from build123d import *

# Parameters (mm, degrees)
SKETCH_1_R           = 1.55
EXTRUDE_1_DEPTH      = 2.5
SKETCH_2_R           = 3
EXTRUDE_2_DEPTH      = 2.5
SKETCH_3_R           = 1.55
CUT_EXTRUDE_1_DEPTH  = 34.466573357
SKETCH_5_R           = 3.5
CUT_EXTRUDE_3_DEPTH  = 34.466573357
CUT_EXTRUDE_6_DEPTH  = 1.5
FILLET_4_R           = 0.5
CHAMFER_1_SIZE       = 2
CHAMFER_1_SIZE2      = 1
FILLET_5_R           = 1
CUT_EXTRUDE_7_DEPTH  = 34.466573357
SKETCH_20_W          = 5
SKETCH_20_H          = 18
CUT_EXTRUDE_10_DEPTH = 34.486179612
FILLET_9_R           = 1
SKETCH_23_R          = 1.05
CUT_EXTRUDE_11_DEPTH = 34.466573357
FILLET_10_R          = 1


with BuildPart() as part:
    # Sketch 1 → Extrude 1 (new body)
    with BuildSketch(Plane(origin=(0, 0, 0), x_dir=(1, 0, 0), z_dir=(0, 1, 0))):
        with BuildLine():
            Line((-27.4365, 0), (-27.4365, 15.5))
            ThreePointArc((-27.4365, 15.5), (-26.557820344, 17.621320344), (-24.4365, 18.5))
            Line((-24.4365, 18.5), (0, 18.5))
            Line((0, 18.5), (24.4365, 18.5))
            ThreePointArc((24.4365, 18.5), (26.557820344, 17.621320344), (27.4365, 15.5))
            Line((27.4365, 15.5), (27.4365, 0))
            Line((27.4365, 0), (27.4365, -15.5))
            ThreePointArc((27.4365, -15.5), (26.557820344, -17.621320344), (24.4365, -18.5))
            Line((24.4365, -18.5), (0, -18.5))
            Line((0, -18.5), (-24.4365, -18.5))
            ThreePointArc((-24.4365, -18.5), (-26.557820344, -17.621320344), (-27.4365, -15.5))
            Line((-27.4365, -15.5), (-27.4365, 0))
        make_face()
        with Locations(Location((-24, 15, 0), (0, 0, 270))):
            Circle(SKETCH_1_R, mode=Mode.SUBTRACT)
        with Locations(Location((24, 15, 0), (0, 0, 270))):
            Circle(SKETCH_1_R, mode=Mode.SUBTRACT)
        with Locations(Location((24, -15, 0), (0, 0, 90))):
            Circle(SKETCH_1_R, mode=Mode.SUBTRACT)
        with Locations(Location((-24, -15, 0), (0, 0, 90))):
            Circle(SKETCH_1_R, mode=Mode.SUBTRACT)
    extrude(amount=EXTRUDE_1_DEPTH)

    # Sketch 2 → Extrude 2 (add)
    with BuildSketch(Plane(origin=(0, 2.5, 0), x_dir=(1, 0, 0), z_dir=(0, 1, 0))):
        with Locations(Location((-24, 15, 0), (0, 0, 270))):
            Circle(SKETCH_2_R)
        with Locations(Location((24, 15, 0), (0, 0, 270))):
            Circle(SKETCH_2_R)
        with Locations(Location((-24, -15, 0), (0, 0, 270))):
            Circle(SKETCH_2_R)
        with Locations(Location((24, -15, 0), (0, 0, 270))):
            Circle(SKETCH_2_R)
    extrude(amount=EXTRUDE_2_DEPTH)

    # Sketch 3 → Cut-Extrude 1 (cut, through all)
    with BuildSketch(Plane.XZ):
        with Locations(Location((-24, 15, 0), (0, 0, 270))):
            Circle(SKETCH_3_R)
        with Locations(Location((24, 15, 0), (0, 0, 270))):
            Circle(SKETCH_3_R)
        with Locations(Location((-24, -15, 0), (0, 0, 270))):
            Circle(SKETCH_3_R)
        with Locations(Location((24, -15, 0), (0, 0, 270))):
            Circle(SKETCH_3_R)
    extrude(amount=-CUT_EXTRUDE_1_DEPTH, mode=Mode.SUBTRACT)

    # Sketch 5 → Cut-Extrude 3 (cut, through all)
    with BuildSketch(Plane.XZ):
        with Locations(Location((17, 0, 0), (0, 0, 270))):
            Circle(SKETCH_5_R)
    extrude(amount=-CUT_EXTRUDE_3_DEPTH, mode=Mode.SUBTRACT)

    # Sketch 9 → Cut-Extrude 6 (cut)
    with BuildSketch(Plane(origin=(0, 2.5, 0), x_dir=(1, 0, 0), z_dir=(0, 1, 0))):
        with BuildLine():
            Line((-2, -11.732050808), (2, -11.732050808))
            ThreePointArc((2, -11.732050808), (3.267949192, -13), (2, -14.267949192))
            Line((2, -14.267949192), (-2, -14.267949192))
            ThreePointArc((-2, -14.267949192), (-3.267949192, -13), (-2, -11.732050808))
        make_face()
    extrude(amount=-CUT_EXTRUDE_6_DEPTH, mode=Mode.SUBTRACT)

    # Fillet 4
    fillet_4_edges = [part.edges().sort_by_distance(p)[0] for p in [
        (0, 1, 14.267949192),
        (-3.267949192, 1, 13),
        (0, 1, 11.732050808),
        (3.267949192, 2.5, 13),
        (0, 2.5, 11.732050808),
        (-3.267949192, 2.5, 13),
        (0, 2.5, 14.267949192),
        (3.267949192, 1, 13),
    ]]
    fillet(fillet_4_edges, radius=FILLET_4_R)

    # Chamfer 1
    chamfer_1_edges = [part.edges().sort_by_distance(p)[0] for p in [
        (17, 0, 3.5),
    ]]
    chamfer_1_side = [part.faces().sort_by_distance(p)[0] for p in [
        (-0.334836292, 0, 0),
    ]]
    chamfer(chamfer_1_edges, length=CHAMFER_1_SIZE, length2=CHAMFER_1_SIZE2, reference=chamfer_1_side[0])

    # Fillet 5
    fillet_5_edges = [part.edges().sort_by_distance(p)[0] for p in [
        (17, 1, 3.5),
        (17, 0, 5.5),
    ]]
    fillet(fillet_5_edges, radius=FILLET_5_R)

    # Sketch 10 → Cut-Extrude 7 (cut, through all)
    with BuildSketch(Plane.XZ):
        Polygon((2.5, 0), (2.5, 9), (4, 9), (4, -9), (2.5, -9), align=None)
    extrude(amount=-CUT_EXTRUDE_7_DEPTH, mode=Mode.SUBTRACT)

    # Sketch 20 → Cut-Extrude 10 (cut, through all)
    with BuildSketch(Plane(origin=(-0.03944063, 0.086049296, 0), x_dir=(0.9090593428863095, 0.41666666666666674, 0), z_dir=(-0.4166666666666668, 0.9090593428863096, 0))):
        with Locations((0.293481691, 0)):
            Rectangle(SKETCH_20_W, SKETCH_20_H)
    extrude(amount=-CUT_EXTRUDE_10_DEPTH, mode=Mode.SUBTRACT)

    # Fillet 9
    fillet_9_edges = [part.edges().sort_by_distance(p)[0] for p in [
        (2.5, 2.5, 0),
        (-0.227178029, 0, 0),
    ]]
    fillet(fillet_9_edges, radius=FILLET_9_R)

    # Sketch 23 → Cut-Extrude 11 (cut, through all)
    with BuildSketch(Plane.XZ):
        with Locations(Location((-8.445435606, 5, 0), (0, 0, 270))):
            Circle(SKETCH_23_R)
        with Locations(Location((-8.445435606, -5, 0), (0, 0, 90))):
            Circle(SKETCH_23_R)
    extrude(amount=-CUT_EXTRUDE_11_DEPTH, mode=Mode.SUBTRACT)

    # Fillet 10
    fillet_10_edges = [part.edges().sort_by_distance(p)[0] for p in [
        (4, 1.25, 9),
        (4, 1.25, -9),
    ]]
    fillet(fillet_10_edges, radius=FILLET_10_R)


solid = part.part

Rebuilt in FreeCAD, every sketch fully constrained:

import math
import FreeCAD as App
import Part
import Sketcher
from FreeCAD import Vector
Q = App.Units.Quantity


def edges_at(feature, points):
    """Names of the edges that pass closest to the given points."""
    edges = feature.Shape.Edges
    near = lambda p: min(range(len(edges)), key=lambda i: edges[i].distToShape(Part.Vertex(*p))[0])
    return sorted({f"Edge{near(p) + 1}" for p in points})

doc = App.newDocument("Part")
body = doc.addObject("PartDesign::Body", "Body")

# Sketch on XZ plane
sketch1 = doc.addObject("Sketcher::SketchObject", "Sketch")
body.addObject(sketch1)
sketch1.AttachmentSupport = (doc.XZ_Plane, [""])
sketch1.MapMode = "FlatFace"
sketch1.addGeometry(Part.ArcOfCircle(Part.Circle(Vector(-24.4365, -15.5, 0), Vector(0, 0, 1), 3), math.radians(180), math.radians(270)), False)
sketch1.addGeometry(Part.LineSegment(Vector(-27.4365, -15.5, 0), Vector(-27.4365, 15.5, 0)), False)
sketch1.addGeometry(Part.ArcOfCircle(Part.Circle(Vector(-24.4365, 15.5, 0), Vector(0, 0, 1), 3), math.radians(90), math.radians(180)), False)
sketch1.addGeometry(Part.LineSegment(Vector(-24.4365, 18.5, 0), Vector(24.4365, 18.5, 0)), False)
sketch1.addGeometry(Part.ArcOfCircle(Part.Circle(Vector(24.4365, 15.5, 0), Vector(0, 0, 1), 3), math.radians(0), math.radians(90)), False)
sketch1.addGeometry(Part.LineSegment(Vector(27.4365, 15.5, 0), Vector(27.4365, -15.5, 0)), False)
sketch1.addGeometry(Part.ArcOfCircle(Part.Circle(Vector(24.4365, -15.5, 0), Vector(0, 0, 1), 3), math.radians(-90), math.radians(0)), False)
sketch1.addGeometry(Part.LineSegment(Vector(24.4365, -18.5, 0), Vector(-24.4365, -18.5, 0)), False)
sketch1.addGeometry(Part.Circle(Vector(24, 15, 0), Vector(0, 0, 1), 1.55), False)
sketch1.addGeometry(Part.Circle(Vector(-24, 15, 0), Vector(0, 0, 1), 1.55), False)
sketch1.addGeometry(Part.Circle(Vector(24, -15, 0), Vector(0, 0, 1), 1.55), False)
sketch1.addGeometry(Part.Circle(Vector(-24, -15, 0), Vector(0, 0, 1), 1.55), False)
sketch1.addConstraint(Sketcher.Constraint("Tangent", 0, 1, 1, 1))
sketch1.addConstraint(Sketcher.Constraint("Tangent", 1, 2, 2, 2))
sketch1.addConstraint(Sketcher.Constraint("Tangent", 2, 1, 3, 1))
sketch1.addConstraint(Sketcher.Constraint("Tangent", 3, 2, 4, 2))
sketch1.addConstraint(Sketcher.Constraint("Tangent", 4, 1, 5, 1))
sketch1.addConstraint(Sketcher.Constraint("Tangent", 5, 2, 6, 2))
sketch1.addConstraint(Sketcher.Constraint("Tangent", 6, 1, 7, 1))
sketch1.addConstraint(Sketcher.Constraint("Tangent", 7, 2, 0, 2))
sketch1.addConstraint(Sketcher.Constraint("Vertical", 1))
sketch1.addConstraint(Sketcher.Constraint("Horizontal", 3))
sketch1.addConstraint(Sketcher.Constraint("Vertical", 5))
sketch1.addConstraint(Sketcher.Constraint("Horizontal", 7))
sketch1.addConstraint(Sketcher.Constraint("Equal", 0, 2))
sketch1.addConstraint(Sketcher.Constraint("Equal", 2, 4))
sketch1.addConstraint(Sketcher.Constraint("Equal", 4, 6))
sketch1.addConstraint(Sketcher.Constraint("Equal", 8, 9))
sketch1.addConstraint(Sketcher.Constraint("Equal", 9, 10))
sketch1.addConstraint(Sketcher.Constraint("Equal", 10, 11))
sketch1.addConstraint(Sketcher.Constraint("Symmetric", 0, 3, 4, 3, -1, 1))
sketch1.addConstraint(Sketcher.Constraint("Symmetric", 9, 3, 10, 3, -1, 1))
sketch1.addConstraint(Sketcher.Constraint("Symmetric", 8, 3, 11, 3, -1, 1))
sketch1.addConstraint(Sketcher.Constraint("Symmetric", 8, 3, 9, 3, -2))
sketch1.addConstraint(Sketcher.Constraint("Radius", 0, Q("3 mm")))
sketch1.addConstraint(Sketcher.Constraint("Diameter", 8, Q("3.1 mm")))
sketch1.addConstraint(Sketcher.Constraint("DistanceY", 1, 1, 1, 2, Q("31 mm")))
sketch1.addConstraint(Sketcher.Constraint("DistanceX", -1, 1, 8, 3, Q("24 mm")))
sketch1.addConstraint(Sketcher.Constraint("DistanceY", -1, 1, 8, 3, Q("15 mm")))
sketch1.addConstraint(Sketcher.Constraint("DistanceX", 3, 1, 3, 2, Q("48.873 mm")))
pad1 = doc.addObject("PartDesign::Pad", "Pad")
body.addObject(pad1)
pad1.Profile = sketch1
pad1.Length = 2.5
pad1.Reversed = True

# Sketch on XZ plane
sketch2 = doc.addObject("Sketcher::SketchObject", "Sketch001")
body.addObject(sketch2)
sketch2.AttachmentSupport = (doc.XZ_Plane, [""])
sketch2.MapMode = "FlatFace"
sketch2.AttachmentOffset = App.Placement(Vector(0, 0, -2.5), App.Rotation())
sketch2.addGeometry(Part.Circle(Vector(-24, -15, 0), Vector(0, 0, 1), 3), False)
sketch2.addGeometry(Part.Circle(Vector(24, -15, 0), Vector(0, 0, 1), 3), False)
sketch2.addGeometry(Part.Circle(Vector(-24, 15, 0), Vector(0, 0, 1), 3), False)
sketch2.addGeometry(Part.Circle(Vector(24, 15, 0), Vector(0, 0, 1), 3), False)
sketch2.addConstraint(Sketcher.Constraint("Equal", 0, 1))
sketch2.addConstraint(Sketcher.Constraint("Equal", 1, 2))
sketch2.addConstraint(Sketcher.Constraint("Equal", 2, 3))
sketch2.addConstraint(Sketcher.Constraint("Symmetric", 1, 3, 2, 3, -1, 1))
sketch2.addConstraint(Sketcher.Constraint("Symmetric", 0, 3, 3, 3, -1, 1))
sketch2.addConstraint(Sketcher.Constraint("Symmetric", 0, 3, 1, 3, -2))
sketch2.addConstraint(Sketcher.Constraint("Diameter", 0, Q("6 mm")))
sketch2.addConstraint(Sketcher.Constraint("DistanceX", 0, 3, -1, 1, Q("24 mm")))
sketch2.addConstraint(Sketcher.Constraint("DistanceY", 0, 3, -1, 1, Q("15 mm")))
pad2 = doc.addObject("PartDesign::Pad", "Pad001")
body.addObject(pad2)
pad2.Profile = sketch2
pad2.Length = 2.5
pad2.Reversed = True

# Sketch on XZ plane
sketch3 = doc.addObject("Sketcher::SketchObject", "Sketch002")
body.addObject(sketch3)
sketch3.AttachmentSupport = (doc.XZ_Plane, [""])
sketch3.MapMode = "FlatFace"
sketch3.addGeometry(Part.Circle(Vector(-24, 15, 0), Vector(0, 0, 1), 1.55), False)
sketch3.addGeometry(Part.Circle(Vector(24, 15, 0), Vector(0, 0, 1), 1.55), False)
sketch3.addGeometry(Part.Circle(Vector(-24, -15, 0), Vector(0, 0, 1), 1.55), False)
sketch3.addGeometry(Part.Circle(Vector(24, -15, 0), Vector(0, 0, 1), 1.55), False)
sketch3.addConstraint(Sketcher.Constraint("Equal", 0, 1))
sketch3.addConstraint(Sketcher.Constraint("Equal", 1, 2))
sketch3.addConstraint(Sketcher.Constraint("Equal", 2, 3))
sketch3.addConstraint(Sketcher.Constraint("Symmetric", 1, 3, 2, 3, -1, 1))
sketch3.addConstraint(Sketcher.Constraint("Symmetric", 0, 3, 3, 3, -1, 1))
sketch3.addConstraint(Sketcher.Constraint("Symmetric", 0, 3, 1, 3, -2))
sketch3.addConstraint(Sketcher.Constraint("Diameter", 0, Q("3.1 mm")))
sketch3.addConstraint(Sketcher.Constraint("DistanceX", 0, 3, -1, 1, Q("24 mm")))
sketch3.addConstraint(Sketcher.Constraint("DistanceY", -1, 1, 0, 3, Q("15 mm")))
pocket1 = doc.addObject("PartDesign::Pocket", "Pocket")
body.addObject(pocket1)
pocket1.Profile = sketch3
pocket1.Type = "ThroughAll"

# Sketch on XZ plane
sketch4 = doc.addObject("Sketcher::SketchObject", "Sketch003")
body.addObject(sketch4)
sketch4.AttachmentSupport = (doc.XZ_Plane, [""])
sketch4.MapMode = "FlatFace"
sketch4.addGeometry(Part.Circle(Vector(17, 0, 0), Vector(0, 0, 1), 3.5), False)
sketch4.addConstraint(Sketcher.Constraint("PointOnObject", 0, 3, -1))
sketch4.addConstraint(Sketcher.Constraint("Diameter", 0, Q("7 mm")))
sketch4.addConstraint(Sketcher.Constraint("DistanceX", -1, 1, 0, 3, Q("17 mm")))
pocket2 = doc.addObject("PartDesign::Pocket", "Pocket001")
body.addObject(pocket2)
pocket2.Profile = sketch4
pocket2.Type = "ThroughAll"

# Sketch on XZ plane
sketch5 = doc.addObject("Sketcher::SketchObject", "Sketch004")
body.addObject(sketch5)
sketch5.AttachmentSupport = (doc.XZ_Plane, [""])
sketch5.MapMode = "FlatFace"
sketch5.AttachmentOffset = App.Placement(Vector(0, 0, -2.5), App.Rotation())
sketch5.addGeometry(Part.LineSegment(Vector(2, 11.732051, 0), Vector(-2, 11.732051, 0)), False)
sketch5.addGeometry(Part.ArcOfCircle(Part.Circle(Vector(-2, 13, 0), Vector(0, 0, 1), 1.267949), math.radians(90), math.radians(270)), False)
sketch5.addGeometry(Part.LineSegment(Vector(-2, 14.267949, 0), Vector(2, 14.267949, 0)), False)
sketch5.addGeometry(Part.ArcOfCircle(Part.Circle(Vector(2, 13, 0), Vector(0, 0, 1), 1.267949), math.radians(-90), math.radians(90)), False)
sketch5.addConstraint(Sketcher.Constraint("Tangent", 0, 2, 1, 2))
sketch5.addConstraint(Sketcher.Constraint("Tangent", 1, 1, 2, 1))
sketch5.addConstraint(Sketcher.Constraint("Tangent", 2, 2, 3, 2))
sketch5.addConstraint(Sketcher.Constraint("Tangent", 3, 1, 0, 1))
sketch5.addConstraint(Sketcher.Constraint("Horizontal", 0))
sketch5.addConstraint(Sketcher.Constraint("Horizontal", 2))
sketch5.addConstraint(Sketcher.Constraint("DistanceX", 0, 2, 0, 1, Q("4 mm")))
sketch5.addConstraint(Sketcher.Constraint("DistanceX", 1, 3, -1, 1, Q("2 mm")))
sketch5.addConstraint(Sketcher.Constraint("DistanceY", -1, 1, 1, 3, Q("13 mm")))
sketch5.addConstraint(Sketcher.Constraint("Radius", 1, Q("1.267949 mm")))
pocket3 = doc.addObject("PartDesign::Pocket", "Pocket002")
body.addObject(pocket3)
pocket3.Profile = sketch5
pocket3.Length = 1.5
pocket3.Reversed = True
doc.recompute()

fillet = doc.addObject("PartDesign::Fillet", "Fillet")
body.addObject(fillet)
fillet.Base = (pocket3, edges_at(pocket3, [
    (0, 1, 14.268),
    (-3.268, 1, 13),
    (0, 1, 11.732),
    (3.268, 2.5, 13),
    (0, 2.5, 11.732),
    (-3.268, 2.5, 13),
    (0, 2.5, 14.268),
    (3.268, 1, 13),
]))
fillet.Radius = 0.5
doc.recompute()

chamfer = doc.addObject("PartDesign::Chamfer", "Chamfer")
body.addObject(chamfer)
chamfer.Base = (fillet, edges_at(fillet, [(17, 0, 3.5)]))
chamfer.ChamferType = "Two distances"
chamfer.Size = 2
chamfer.Size2 = 1
chamfer.FlipDirection = True
doc.recompute()

fillet2 = doc.addObject("PartDesign::Fillet", "Fillet001")
body.addObject(fillet2)
fillet2.Base = (chamfer, edges_at(chamfer, [(17, 1, 3.5), (17, 0, 5.5)]))
fillet2.Radius = 1

# Sketch on XZ plane
sketch6 = doc.addObject("Sketcher::SketchObject", "Sketch005")
body.addObject(sketch6)
sketch6.AttachmentSupport = (doc.XZ_Plane, [""])
sketch6.MapMode = "FlatFace"
sketch6.addGeometry(Part.LineSegment(Vector(2.5, 9, 0), Vector(2.5, -9, 0)), False)
sketch6.addGeometry(Part.LineSegment(Vector(2.5, -9, 0), Vector(4, -9, 0)), False)
sketch6.addGeometry(Part.LineSegment(Vector(4, -9, 0), Vector(4, 9, 0)), False)
sketch6.addGeometry(Part.LineSegment(Vector(4, 9, 0), Vector(2.5, 9, 0)), False)
sketch6.addConstraint(Sketcher.Constraint("Coincident", 0, 2, 1, 1))
sketch6.addConstraint(Sketcher.Constraint("Coincident", 1, 2, 2, 1))
sketch6.addConstraint(Sketcher.Constraint("Coincident", 2, 2, 3, 1))
sketch6.addConstraint(Sketcher.Constraint("Coincident", 3, 2, 0, 1))
sketch6.addConstraint(Sketcher.Constraint("Vertical", 0))
sketch6.addConstraint(Sketcher.Constraint("Horizontal", 1))
sketch6.addConstraint(Sketcher.Constraint("Vertical", 2))
sketch6.addConstraint(Sketcher.Constraint("Horizontal", 3))
sketch6.addConstraint(Sketcher.Constraint("DistanceY", 0, 2, 0, 1, Q("18 mm")))
sketch6.addConstraint(Sketcher.Constraint("DistanceX", 1, 1, 1, 2, Q("1.5 mm")))
sketch6.addConstraint(Sketcher.Constraint("DistanceY", 0, 2, -1, 1, Q("9 mm")))
sketch6.addConstraint(Sketcher.Constraint("DistanceX", -1, 1, 1, 2, Q("4 mm")))
pocket4 = doc.addObject("PartDesign::Pocket", "Pocket003")
body.addObject(pocket4)
pocket4.Profile = sketch6
pocket4.Type = "ThroughAll"

# Sketch on an angled plane
sketch7 = doc.addObject("Sketcher::SketchObject", "Sketch006")
body.addObject(sketch7)
sketch7.Placement = App.Placement(Vector(-0.039441, 0.086049, 0), App.Rotation(Vector(0.909059343, 0.416666667, 0), Vector(0, 0, -1), Vector(-0.416666667, 0.909059343, 0), "ZXY"))
sketch7.addGeometry(Part.LineSegment(Vector(-2.206518, 9, 0), Vector(-2.206518, -9, 0)), False)
sketch7.addGeometry(Part.LineSegment(Vector(-2.206518, -9, 0), Vector(2.793482, -9, 0)), False)
sketch7.addGeometry(Part.LineSegment(Vector(2.793482, -9, 0), Vector(2.793482, 9, 0)), False)
sketch7.addGeometry(Part.LineSegment(Vector(2.793482, 9, 0), Vector(-2.206518, 9, 0)), False)
sketch7.addConstraint(Sketcher.Constraint("Coincident", 0, 2, 1, 1))
sketch7.addConstraint(Sketcher.Constraint("Coincident", 1, 2, 2, 1))
sketch7.addConstraint(Sketcher.Constraint("Coincident", 2, 2, 3, 1))
sketch7.addConstraint(Sketcher.Constraint("Coincident", 3, 2, 0, 1))
sketch7.addConstraint(Sketcher.Constraint("Vertical", 0))
sketch7.addConstraint(Sketcher.Constraint("Horizontal", 1))
sketch7.addConstraint(Sketcher.Constraint("Vertical", 2))
sketch7.addConstraint(Sketcher.Constraint("Horizontal", 3))
sketch7.addConstraint(Sketcher.Constraint("DistanceX", 1, 1, 1, 2, Q("5 mm")))
sketch7.addConstraint(Sketcher.Constraint("DistanceY", 0, 2, 0, 1, Q("18 mm")))
sketch7.addConstraint(Sketcher.Constraint("DistanceY", 0, 2, -1, 1, Q("9 mm")))
sketch7.addConstraint(Sketcher.Constraint("DistanceX", 0, 2, -1, 1, Q("2.206518 mm")))
pocket5 = doc.addObject("PartDesign::Pocket", "Pocket004")
body.addObject(pocket5)
pocket5.Profile = sketch7
pocket5.Type = "ThroughAll"
doc.recompute()

fillet3 = doc.addObject("PartDesign::Fillet", "Fillet002")
body.addObject(fillet3)
fillet3.Base = (pocket5, edges_at(pocket5, [(2.5, 2.5, 0), (-0.227, 0, 0)]))
fillet3.Radius = 1

# Sketch on XZ plane
sketch8 = doc.addObject("Sketcher::SketchObject", "Sketch007")
body.addObject(sketch8)
sketch8.AttachmentSupport = (doc.XZ_Plane, [""])
sketch8.MapMode = "FlatFace"
sketch8.addGeometry(Part.Circle(Vector(-8.445436, 5, 0), Vector(0, 0, 1), 1.05), False)
sketch8.addGeometry(Part.Circle(Vector(-8.445436, -5, 0), Vector(0, 0, 1), 1.05), False)
sketch8.addConstraint(Sketcher.Constraint("Equal", 0, 1))
sketch8.addConstraint(Sketcher.Constraint("Symmetric", 0, 3, 1, 3, -1))
sketch8.addConstraint(Sketcher.Constraint("Diameter", 0, Q("2.1 mm")))
sketch8.addConstraint(Sketcher.Constraint("DistanceY", -1, 1, 0, 3, Q("5 mm")))
sketch8.addConstraint(Sketcher.Constraint("DistanceX", 0, 3, -1, 1, Q("8.445436 mm")))
pocket6 = doc.addObject("PartDesign::Pocket", "Pocket005")
body.addObject(pocket6)
pocket6.Profile = sketch8
pocket6.Type = "ThroughAll"
doc.recompute()

fillet4 = doc.addObject("PartDesign::Fillet", "Fillet003")
body.addObject(fillet4)
fillet4.Base = (pocket6, edges_at(pocket6, [(4, 1.25, 9), (4, 1.25, -9)]))
fillet4.Radius = 1

doc.recompute()
